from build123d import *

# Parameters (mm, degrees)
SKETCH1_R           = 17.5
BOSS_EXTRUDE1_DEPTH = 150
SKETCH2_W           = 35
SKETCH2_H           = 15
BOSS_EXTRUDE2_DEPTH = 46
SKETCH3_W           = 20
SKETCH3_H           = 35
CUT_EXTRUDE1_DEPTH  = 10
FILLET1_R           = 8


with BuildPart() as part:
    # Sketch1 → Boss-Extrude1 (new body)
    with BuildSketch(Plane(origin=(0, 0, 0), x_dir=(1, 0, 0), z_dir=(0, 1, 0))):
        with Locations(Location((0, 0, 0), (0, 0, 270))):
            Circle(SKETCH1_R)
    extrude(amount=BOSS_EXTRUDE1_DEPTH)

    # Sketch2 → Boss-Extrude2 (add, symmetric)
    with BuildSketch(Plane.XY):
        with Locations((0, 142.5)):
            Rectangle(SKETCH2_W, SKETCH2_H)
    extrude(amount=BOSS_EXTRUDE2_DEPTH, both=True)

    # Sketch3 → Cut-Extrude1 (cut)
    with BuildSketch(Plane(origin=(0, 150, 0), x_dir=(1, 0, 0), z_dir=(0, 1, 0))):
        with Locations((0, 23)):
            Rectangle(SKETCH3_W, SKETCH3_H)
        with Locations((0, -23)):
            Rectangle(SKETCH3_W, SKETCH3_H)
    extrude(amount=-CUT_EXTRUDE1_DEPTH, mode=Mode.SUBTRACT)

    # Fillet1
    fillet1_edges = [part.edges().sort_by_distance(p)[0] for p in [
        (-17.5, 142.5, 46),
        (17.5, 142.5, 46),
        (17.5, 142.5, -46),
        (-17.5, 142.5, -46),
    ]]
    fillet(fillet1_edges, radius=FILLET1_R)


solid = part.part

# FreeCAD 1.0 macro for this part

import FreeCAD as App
import Part
import Sketcher
Q = App.Units.Quantity


def edges_at(feature, points):
    """Names of the edges that pass closest to the given points."""
    edges = feature.Shape.Edges
    near = lambda p: min(range(len(edges)), key=lambda i: edges[i].distToShape(Part.Vertex(*p))[0])
    return sorted({f"Edge{near(p) + 1}" for p in points})

doc = App.newDocument("Part")
params = doc.addObject("Spreadsheet::Sheet", "Params")
for row, (alias, value) in enumerate([
    ("sketch1_diameter", "35 mm"),
    ("pad1_length", "150 mm"),
    ("sketch2_width", "35 mm"),
    ("sketch2_height", "15 mm"),
    ("pad2_length", "92 mm"),
    ("sketch3_width", "20 mm"),
    ("sketch3_height", "35 mm"),
    ("pocket1_length", "10 mm"),
    ("fillet_radius", "8 mm"),
], start=1):
    params.set(f"A{row}", alias)
    params.set(f"B{row}", "=" + value)
    params.setAlias(f"B{row}", alias)

body = doc.addObject("PartDesign::Body", "Body")

sketch1 = body.newObject("Sketcher::SketchObject", "Sketch")
sketch1.AttachmentSupport = (doc.getObject("XZ_Plane"), [""])
sketch1.MapMode = "FlatFace"
sketch1.addGeometry(Part.Circle(App.Vector(0, 0, 0), App.Vector(0, 0, 1), 18), False)
sketch1.addConstraint([
    Sketcher.Constraint("Coincident", 0, 3, -1, 1),
    Sketcher.Constraint("Diameter", 0, Q("35 mm")),
])
sketch1.setExpression("Constraints[1]", "Params.sketch1_diameter")
pad1 = body.newObject("PartDesign::Pad", "Pad")
pad1.Profile = sketch1
pad1.setExpression("Length", "Params.pad1_length")
pad1.Reversed = True

sketch2 = body.newObject("Sketcher::SketchObject", "Sketch001")
sketch2.AttachmentSupport = (doc.getObject("XY_Plane"), [""])
sketch2.MapMode = "FlatFace"
sketch2.addGeometry([
    Part.LineSegment(App.Vector(-18, 150, 0), App.Vector(-18, 135, 0)),
    Part.LineSegment(App.Vector(-18, 135, 0), App.Vector(18, 135, 0)),
    Part.LineSegment(App.Vector(18, 135, 0), App.Vector(18, 150, 0)),
    Part.LineSegment(App.Vector(18, 150, 0), App.Vector(-18, 150, 0)),
], False)
sketch2.addConstraint([
    Sketcher.Constraint("Coincident", 0, 2, 1, 1),
    Sketcher.Constraint("Coincident", 1, 2, 2, 1),
    Sketcher.Constraint("Coincident", 2, 2, 3, 1),
    Sketcher.Constraint("Coincident", 3, 2, 0, 1),
    Sketcher.Constraint("Vertical", 0),
    Sketcher.Constraint("Horizontal", 1),
    Sketcher.Constraint("Vertical", 2),
    Sketcher.Constraint("Horizontal", 3),
    Sketcher.Constraint("DistanceX", 1, 1, 1, 2, Q("35 mm")),
    Sketcher.Constraint("DistanceY", 0, 2, 0, 1, Q("15 mm")),
    Sketcher.Constraint("DistanceY", -1, 1, 0, 2, Q("135 mm")),
    Sketcher.Constraint("DistanceX", 0, 2, -1, 1, Q("17.5 mm")),
])
sketch2.setExpression("Constraints[8]", "Params.sketch2_width")
sketch2.setExpression("Constraints[9]", "Params.sketch2_height")
pad2 = body.newObject("PartDesign::Pad", "Pad001")
pad2.Profile = sketch2
pad2.setExpression("Length", "Params.pad2_length")
pad2.Midplane = True

sketch3 = body.newObject("Sketcher::SketchObject", "Sketch002")
sketch3.AttachmentSupport = (doc.getObject("XZ_Plane"), [""])
sketch3.MapMode = "FlatFace"
sketch3.AttachmentOffset = App.Placement(App.Vector(0, 0, -150), App.Rotation())
sketch3.addGeometry([
    Part.LineSegment(App.Vector(-10, -40, 0), App.Vector(-10, -6, 0)),
    Part.LineSegment(App.Vector(-10, -6, 0), App.Vector(10, -6, 0)),
    Part.LineSegment(App.Vector(10, -6, 0), App.Vector(10, -40, 0)),
    Part.LineSegment(App.Vector(10, -40, 0), App.Vector(-10, -40, 0)),
    Part.LineSegment(App.Vector(-10, 6, 0), App.Vector(-10, 40, 0)),
    Part.LineSegment(App.Vector(-10, 40, 0), App.Vector(10, 40, 0)),
    Part.LineSegment(App.Vector(10, 40, 0), App.Vector(10, 6, 0)),
    Part.LineSegment(App.Vector(10, 6, 0), App.Vector(-10, 6, 0)),
], False)
sketch3.addConstraint([
    Sketcher.Constraint("Coincident", 0, 2, 1, 1),
    Sketcher.Constraint("Coincident", 1, 2, 2, 1),
    Sketcher.Constraint("Coincident", 2, 2, 3, 1),
    Sketcher.Constraint("Coincident", 3, 2, 0, 1),
    Sketcher.Constraint("Coincident", 4, 2, 5, 1),
    Sketcher.Constraint("Coincident", 5, 2, 6, 1),
    Sketcher.Constraint("Coincident", 6, 2, 7, 1),
    Sketcher.Constraint("Coincident", 7, 2, 4, 1),
    Sketcher.Constraint("Vertical", 0),
    Sketcher.Constraint("Horizontal", 1),
    Sketcher.Constraint("Vertical", 2),
    Sketcher.Constraint("Horizontal", 3),
    Sketcher.Constraint("Vertical", 4),
    Sketcher.Constraint("Horizontal", 5),
    Sketcher.Constraint("Vertical", 6),
    Sketcher.Constraint("Horizontal", 7),
    Sketcher.Constraint("Symmetric", 2, 2, 4, 2, -1, 1),
    Sketcher.Constraint("Symmetric", 0, 2, 6, 2, -1, 1),
    Sketcher.Constraint("Vertical", 3, 2, 4, 2),
    Sketcher.Constraint("DistanceX", 1, 1, 1, 2, Q("20 mm")),
    Sketcher.Constraint("DistanceY", 0, 1, 0, 2, Q("35 mm")),
    Sketcher.Constraint("DistanceY", 0, 2, 4, 2, Q("46 mm")),
])
sketch3.setExpression("Constraints[19]", "Params.sketch3_width")
sketch3.setExpression("Constraints[20]", "Params.sketch3_height")
pocket1 = body.newObject("PartDesign::Pocket", "Pocket")
pocket1.Profile = sketch3
pocket1.setExpression("Length", "Params.pocket1_length")
pocket1.Reversed = True
doc.recompute()

fillet = body.newObject("PartDesign::Fillet", "Fillet")
fillet.Base = (pocket1, edges_at(pocket1, [
    (-17.5, 142.5, 46),
    (17.5, 142.5, 46),
    (17.5, 142.5, -46),
    (-17.5, 142.5, -46),
]))
fillet.setExpression("Radius", "Params.fillet_radius")

doc.recompute()
